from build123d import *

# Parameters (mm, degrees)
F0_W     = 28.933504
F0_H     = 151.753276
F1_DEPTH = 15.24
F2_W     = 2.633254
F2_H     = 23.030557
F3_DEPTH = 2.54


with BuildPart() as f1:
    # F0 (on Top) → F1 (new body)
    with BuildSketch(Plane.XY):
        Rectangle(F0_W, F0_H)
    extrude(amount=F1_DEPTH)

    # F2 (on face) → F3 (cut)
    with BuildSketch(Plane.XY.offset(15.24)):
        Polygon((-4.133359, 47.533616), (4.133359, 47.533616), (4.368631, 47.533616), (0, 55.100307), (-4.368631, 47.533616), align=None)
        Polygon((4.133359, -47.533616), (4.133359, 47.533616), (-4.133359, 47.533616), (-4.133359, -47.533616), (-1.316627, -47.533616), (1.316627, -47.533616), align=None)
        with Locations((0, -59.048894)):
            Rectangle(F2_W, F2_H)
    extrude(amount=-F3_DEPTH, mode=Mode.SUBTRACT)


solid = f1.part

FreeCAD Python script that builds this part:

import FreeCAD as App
import Part
import Sketcher

V = App.Vector
Q = App.Units.Quantity


def add_polygon(sketch, points):
    """Adds a closed chain of lines whose ends are joined by coincident constraints."""
    first, n = sketch.GeometryCount, len(points)
    for a, b in zip(points, points[1:] + points[:1]):
        sketch.addGeometry(Part.LineSegment(App.Vector(*a, 0), App.Vector(*b, 0)), False)
    for i in range(n):
        sketch.addConstraint(Sketcher.Constraint("Coincident", first + i, 2, first + (i + 1) % n, 1))

doc = App.newDocument("Part")
params = doc.addObject("Spreadsheet::Sheet", "Params")
for row, (alias, value) in enumerate([
    ("pad1_length", "0.6 in"),
    ("pocket1_length", "0.1 in"),
], start=1):
    params.set(f"A{row}", alias)
    params.set(f"B{row}", "=" + value)
    params.setAlias(f"B{row}", alias)

body = doc.addObject("PartDesign::Body", "Body")

# Sketch on XY plane
sketch1 = body.newObject("Sketcher::SketchObject", "Sketch")
sketch1.AttachmentSupport = (doc.getObject("XY_Plane"), [""])
sketch1.MapMode = "FlatFace"
add_polygon(sketch1, [(-14, 76), (-14, -76), (14, -76), (14, 76)])  # lines 0-3
sketch1.addConstraint([
    Sketcher.Constraint("Vertical", 0),
    Sketcher.Constraint("Horizontal", 1),
    Sketcher.Constraint("Vertical", 2),
    Sketcher.Constraint("Horizontal", 3),
    Sketcher.Constraint("Symmetric", 0, 2, 2, 2, -1, 1),
    Sketcher.Constraint("DistanceX", 1, 1, 1, 2, 28.933504),
    Sketcher.Constraint("DistanceY", 0, 2, 0, 1, 151.753276),
])
pad1 = body.newObject("PartDesign::Pad", "Pad")
pad1.Profile = sketch1
pad1.setExpression("Length", "Params.pad1_length")

# Sketch on XY plane
sketch2 = body.newObject("Sketcher::SketchObject", "Sketch001")
sketch2.AttachmentSupport = (doc.getObject("XY_Plane"), [""])
sketch2.MapMode = "FlatFace"
sketch2.AttachmentOffset = App.Placement(V(0, 0, 0.6 * 25.4), App.Rotation())
add_polygon(sketch2, [(4.13, 47.53), (4.37, 47.53), (0, 55.1), (-4.37, 47.53), (-4.13, 47.53), (-4.13, -47.53), (-1.32, -47.53), (-1.32, -70.56), (1.32, -70.56), (1.32, -47.53), (4.13, -47.53)])  # lines 0-10
sketch2.addConstraint([
    Sketcher.Constraint("Horizontal", 0),
    Sketcher.Constraint("Horizontal", 3),
    Sketcher.Constraint("Vertical", 4),
    Sketcher.Constraint("Horizontal", 5),
    Sketcher.Constraint("Vertical", 6),
    Sketcher.Constraint("Horizontal", 7),
    Sketcher.Constraint("Vertical", 8),
    Sketcher.Constraint("Horizontal", 9),
    Sketcher.Constraint("Vertical", 10),
    Sketcher.Constraint("Symmetric", 3, 2, 9, 2, -1, 1),
    Sketcher.Constraint("Symmetric", 0, 2, 2, 2, -2),
    Sketcher.Constraint("Symmetric", 5, 2, 8, 2, -2),
    Sketcher.Constraint("PointOnObject", 1, 2, -2),
    Sketcher.Constraint("Angle", 1, Q("120 deg")),
    Sketcher.Constraint("DistanceX", 5, 1, 5, 2, 2.816732),
    Sketcher.Constraint("DistanceX", 0, 1, 0, 2, 0.235272),
    Sketcher.Constraint("DistanceX", 7, 1, 7, 2, 2.633254),
    Sketcher.Constraint("DistanceY", 4, 2, 4, 1, 95.067232),
    Sketcher.Constraint("DistanceY", 6, 2, 6, 1, 23.030556),
])
pocket1 = body.newObject("PartDesign::Pocket", "Pocket")
pocket1.Profile = sketch2
pocket1.setExpression("Length", "Params.pocket1_length")

doc.recompute()
